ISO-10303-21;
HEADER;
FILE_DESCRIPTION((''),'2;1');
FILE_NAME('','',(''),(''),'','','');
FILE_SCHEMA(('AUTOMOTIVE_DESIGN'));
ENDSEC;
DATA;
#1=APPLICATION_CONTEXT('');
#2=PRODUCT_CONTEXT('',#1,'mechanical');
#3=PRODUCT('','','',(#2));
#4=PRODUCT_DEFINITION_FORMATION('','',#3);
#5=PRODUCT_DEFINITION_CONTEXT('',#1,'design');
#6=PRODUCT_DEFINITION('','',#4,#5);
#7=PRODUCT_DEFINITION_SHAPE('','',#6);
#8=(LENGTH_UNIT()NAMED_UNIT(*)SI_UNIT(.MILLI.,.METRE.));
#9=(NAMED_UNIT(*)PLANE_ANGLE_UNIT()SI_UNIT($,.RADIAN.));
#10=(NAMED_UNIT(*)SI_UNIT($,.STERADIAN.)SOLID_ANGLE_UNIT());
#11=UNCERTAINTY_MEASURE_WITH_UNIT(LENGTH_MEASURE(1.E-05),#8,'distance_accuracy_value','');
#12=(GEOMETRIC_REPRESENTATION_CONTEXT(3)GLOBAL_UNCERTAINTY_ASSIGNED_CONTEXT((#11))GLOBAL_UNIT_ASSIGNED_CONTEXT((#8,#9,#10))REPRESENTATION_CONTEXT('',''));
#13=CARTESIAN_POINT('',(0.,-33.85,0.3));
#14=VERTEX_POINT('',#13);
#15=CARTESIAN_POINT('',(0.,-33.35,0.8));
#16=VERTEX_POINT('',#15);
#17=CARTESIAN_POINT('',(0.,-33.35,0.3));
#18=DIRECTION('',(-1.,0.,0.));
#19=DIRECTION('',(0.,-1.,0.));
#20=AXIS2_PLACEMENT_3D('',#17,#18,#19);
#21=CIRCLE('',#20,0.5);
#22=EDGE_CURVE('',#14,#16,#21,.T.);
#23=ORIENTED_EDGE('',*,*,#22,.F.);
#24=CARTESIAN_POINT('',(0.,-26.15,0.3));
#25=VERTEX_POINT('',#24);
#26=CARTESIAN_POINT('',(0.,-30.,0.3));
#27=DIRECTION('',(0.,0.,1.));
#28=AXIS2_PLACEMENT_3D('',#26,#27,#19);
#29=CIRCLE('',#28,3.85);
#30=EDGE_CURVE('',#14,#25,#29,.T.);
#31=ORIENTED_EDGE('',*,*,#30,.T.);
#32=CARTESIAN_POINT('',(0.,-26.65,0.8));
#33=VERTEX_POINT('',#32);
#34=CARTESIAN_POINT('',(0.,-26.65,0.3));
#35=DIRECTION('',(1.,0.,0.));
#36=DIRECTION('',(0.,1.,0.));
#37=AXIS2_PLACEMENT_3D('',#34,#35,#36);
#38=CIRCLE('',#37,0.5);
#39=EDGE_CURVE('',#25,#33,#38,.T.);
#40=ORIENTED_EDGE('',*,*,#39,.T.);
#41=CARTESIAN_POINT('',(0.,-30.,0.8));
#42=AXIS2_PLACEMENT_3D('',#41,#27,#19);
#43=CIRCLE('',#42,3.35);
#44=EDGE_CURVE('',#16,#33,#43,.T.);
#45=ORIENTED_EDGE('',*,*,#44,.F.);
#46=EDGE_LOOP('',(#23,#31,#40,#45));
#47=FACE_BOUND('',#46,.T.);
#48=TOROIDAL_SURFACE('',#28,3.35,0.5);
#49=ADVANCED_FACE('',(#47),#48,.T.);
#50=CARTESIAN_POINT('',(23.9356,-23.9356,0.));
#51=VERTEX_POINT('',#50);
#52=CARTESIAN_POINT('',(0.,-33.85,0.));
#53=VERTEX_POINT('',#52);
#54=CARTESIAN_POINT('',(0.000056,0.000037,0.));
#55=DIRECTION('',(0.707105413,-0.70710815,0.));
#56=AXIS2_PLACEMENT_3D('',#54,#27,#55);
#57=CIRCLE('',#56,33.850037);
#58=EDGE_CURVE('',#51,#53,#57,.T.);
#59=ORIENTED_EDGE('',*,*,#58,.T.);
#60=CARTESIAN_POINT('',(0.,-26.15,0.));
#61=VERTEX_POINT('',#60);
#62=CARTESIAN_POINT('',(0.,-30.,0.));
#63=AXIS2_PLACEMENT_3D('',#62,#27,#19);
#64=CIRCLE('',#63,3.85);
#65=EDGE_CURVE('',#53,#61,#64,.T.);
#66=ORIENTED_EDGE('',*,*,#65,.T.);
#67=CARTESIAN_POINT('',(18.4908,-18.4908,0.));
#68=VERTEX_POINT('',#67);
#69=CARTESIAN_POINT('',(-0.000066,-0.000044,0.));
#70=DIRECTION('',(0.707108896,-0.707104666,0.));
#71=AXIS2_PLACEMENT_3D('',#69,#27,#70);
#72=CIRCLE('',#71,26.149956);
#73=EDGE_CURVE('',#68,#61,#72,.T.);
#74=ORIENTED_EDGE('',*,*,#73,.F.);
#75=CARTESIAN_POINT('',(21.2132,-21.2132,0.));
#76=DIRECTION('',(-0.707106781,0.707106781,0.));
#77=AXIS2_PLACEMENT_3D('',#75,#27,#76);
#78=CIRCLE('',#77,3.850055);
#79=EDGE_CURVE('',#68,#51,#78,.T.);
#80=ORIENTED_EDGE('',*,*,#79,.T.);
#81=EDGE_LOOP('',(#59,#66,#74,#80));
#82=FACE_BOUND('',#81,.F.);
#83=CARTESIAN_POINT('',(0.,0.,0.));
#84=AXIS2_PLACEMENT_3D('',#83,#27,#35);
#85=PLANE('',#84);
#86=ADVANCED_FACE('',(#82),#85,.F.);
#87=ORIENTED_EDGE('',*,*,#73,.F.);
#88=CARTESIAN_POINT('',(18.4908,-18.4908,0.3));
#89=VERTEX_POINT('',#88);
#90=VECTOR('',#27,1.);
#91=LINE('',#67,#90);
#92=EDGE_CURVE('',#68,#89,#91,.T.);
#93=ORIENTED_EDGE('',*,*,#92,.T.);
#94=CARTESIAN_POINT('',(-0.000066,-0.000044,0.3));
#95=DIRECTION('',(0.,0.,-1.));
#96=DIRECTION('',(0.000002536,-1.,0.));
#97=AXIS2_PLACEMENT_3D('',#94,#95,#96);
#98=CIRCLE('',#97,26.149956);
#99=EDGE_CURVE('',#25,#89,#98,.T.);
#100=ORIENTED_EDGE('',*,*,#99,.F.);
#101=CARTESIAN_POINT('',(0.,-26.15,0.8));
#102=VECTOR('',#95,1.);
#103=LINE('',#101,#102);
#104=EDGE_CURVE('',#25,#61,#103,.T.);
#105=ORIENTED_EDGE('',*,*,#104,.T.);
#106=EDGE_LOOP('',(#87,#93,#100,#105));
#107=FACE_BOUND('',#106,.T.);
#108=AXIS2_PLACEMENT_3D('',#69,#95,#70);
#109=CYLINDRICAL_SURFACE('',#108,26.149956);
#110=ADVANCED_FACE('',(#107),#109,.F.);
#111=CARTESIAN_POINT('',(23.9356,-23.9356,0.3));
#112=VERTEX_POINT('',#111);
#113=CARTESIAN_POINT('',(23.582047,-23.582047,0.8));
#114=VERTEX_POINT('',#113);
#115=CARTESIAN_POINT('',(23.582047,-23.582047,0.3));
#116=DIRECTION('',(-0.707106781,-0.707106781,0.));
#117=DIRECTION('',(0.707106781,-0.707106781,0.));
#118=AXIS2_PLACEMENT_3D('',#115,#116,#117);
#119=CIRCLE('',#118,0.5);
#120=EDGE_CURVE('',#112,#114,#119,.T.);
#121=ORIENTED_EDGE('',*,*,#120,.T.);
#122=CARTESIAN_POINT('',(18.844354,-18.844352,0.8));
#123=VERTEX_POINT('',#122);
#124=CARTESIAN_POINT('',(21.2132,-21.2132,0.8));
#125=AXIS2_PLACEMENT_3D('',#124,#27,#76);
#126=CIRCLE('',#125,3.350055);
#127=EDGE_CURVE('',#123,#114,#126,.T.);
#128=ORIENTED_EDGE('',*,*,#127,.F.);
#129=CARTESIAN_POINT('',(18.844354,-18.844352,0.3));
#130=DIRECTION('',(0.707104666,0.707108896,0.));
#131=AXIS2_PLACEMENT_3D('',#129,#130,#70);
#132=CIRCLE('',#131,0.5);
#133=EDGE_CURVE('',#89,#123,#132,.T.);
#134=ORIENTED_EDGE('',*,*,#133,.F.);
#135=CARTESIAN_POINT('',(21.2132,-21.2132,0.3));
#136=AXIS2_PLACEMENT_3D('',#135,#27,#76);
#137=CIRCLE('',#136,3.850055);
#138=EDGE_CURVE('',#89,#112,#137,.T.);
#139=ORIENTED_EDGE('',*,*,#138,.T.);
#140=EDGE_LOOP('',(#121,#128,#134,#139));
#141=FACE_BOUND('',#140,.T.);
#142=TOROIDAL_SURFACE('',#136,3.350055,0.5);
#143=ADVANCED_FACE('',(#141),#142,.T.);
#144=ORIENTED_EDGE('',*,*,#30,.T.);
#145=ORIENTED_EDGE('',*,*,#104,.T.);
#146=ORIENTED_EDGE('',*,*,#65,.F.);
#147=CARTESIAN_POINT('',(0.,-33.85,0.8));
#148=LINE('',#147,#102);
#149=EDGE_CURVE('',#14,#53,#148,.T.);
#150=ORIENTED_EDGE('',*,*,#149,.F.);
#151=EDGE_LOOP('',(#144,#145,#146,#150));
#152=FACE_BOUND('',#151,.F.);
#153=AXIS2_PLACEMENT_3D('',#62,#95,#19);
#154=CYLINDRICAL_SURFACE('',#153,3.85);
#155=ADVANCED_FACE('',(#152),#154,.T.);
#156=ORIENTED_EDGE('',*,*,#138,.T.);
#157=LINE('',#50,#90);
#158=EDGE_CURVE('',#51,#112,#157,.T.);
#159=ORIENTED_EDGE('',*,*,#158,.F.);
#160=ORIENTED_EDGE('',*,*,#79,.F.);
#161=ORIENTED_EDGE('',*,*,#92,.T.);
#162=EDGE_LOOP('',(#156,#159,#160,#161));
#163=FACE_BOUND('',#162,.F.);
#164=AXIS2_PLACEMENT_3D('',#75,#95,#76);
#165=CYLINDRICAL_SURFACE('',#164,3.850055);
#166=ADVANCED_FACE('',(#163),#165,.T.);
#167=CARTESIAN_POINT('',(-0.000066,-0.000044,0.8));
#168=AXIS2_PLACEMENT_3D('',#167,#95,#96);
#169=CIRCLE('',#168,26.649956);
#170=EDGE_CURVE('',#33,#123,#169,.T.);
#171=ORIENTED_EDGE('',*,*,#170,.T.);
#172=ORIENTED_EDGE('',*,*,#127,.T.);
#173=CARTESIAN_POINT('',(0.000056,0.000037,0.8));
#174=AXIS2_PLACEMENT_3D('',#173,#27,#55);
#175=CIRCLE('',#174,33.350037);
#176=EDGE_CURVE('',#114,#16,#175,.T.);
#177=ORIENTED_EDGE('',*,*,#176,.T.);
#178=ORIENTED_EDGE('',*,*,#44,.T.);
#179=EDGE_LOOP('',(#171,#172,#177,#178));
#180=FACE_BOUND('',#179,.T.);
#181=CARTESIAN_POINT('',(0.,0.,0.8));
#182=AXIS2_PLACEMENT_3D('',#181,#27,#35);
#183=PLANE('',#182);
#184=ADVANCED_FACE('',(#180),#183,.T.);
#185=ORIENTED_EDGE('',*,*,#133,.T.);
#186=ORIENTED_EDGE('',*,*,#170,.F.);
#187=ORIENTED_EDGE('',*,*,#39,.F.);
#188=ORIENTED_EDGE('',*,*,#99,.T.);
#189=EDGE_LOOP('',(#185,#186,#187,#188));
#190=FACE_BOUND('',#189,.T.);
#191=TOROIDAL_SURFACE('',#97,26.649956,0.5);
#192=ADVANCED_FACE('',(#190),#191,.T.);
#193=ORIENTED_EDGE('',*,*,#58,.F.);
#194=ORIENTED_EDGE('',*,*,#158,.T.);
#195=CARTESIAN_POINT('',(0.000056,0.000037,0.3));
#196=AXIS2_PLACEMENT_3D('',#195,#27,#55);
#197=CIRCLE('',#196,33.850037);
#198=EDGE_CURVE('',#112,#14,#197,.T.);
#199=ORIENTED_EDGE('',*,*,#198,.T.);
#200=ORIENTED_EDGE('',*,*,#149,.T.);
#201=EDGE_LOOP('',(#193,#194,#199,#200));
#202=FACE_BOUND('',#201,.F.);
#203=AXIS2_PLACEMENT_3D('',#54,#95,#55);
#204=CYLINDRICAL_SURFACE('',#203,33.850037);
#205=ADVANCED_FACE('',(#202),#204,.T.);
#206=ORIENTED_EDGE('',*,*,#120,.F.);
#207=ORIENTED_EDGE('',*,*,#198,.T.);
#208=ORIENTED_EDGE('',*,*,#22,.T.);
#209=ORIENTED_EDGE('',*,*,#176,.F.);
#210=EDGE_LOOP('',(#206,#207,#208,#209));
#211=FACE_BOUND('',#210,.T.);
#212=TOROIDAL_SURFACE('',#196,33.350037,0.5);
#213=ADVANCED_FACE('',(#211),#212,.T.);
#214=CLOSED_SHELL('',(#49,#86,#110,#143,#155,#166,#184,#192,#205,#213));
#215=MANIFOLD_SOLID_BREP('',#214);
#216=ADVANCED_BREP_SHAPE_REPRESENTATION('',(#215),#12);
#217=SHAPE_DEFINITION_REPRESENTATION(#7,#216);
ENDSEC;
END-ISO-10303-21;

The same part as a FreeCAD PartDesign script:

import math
import FreeCAD as App
import Part
import Sketcher
from FreeCAD import Vector
Q = App.Units.Quantity


def edges_at(feature, points):
    """Names of the edges that pass closest to the given points."""
    edges = feature.Shape.Edges
    near = lambda p: min(range(len(edges)), key=lambda i: edges[i].distToShape(Part.Vertex(*p))[0])
    return sorted({f"Edge{near(p) + 1}" for p in points})

doc = App.newDocument("Part")
params = doc.addObject("Spreadsheet::Sheet", "Params")
for row, (alias, value) in enumerate([
    ("sketch1_diameter", "5.8 mm"),
    ("sketch1_radius", "26.15 mm"),
    ("sketch1_radius2", "3.85 mm"),
    ("pad1_length", "0.2 mm"),
    ("sketch2_radius", "3.85 mm"),
    ("sketch2_radius2", "33.85 mm"),
    ("pad2_length", "0.6 mm"),
    ("fillet_radius", "0.5 mm"),
    ("sketch3_diameter", "5.8 mm"),
    ("pad3_length", "0.2 mm"),
], start=1):
    params.set(f"A{row}", alias)
    params.set(f"B{row}", "=" + value)
    params.setAlias(f"B{row}", alias)

body = doc.addObject("PartDesign::Body", "Body")

# Sketch on XY plane
sketch1 = doc.addObject("Sketcher::SketchObject", "Sketch")
body.addObject(sketch1)
sketch1.AttachmentSupport = (doc.XY_Plane, [""])
sketch1.MapMode = "FlatFace"
sketch1.addGeometry([
    Part.ArcOfCircle(Part.Circle(Vector(0, 0, 0), Vector(0, 0, 1), 26.14994), math.radians(-45), math.radians(270)),  # 0
    Part.ArcOfCircle(Part.Circle(Vector(21.2132, -21.2132, 0), Vector(0, 0, 1), 3.850055), math.radians(135), math.radians(315)),  # 1
    Part.ArcOfCircle(Part.Circle(Vector(0, 0, 0), Vector(0, 0, 1), 33.85005), math.radians(-45), math.radians(270)),  # 2
    Part.ArcOfCircle(Part.Circle(Vector(0, -30, 0), Vector(0, 0, 1), 3.85), math.radians(-90), math.radians(90)),  # 3
    Part.Circle(Vector(-21.2132, -21.2132, 0), Vector(0, 0, 1), 2.9),  # 4
    Part.Circle(Vector(0, -30, 0), Vector(0, 0, 1), 2.9),  # 5
    Part.Circle(Vector(-30, 0, 0), Vector(0, 0, 1), 2.9),  # 6
    Part.Circle(Vector(21.2132, -21.2132, 0), Vector(0, 0, 1), 2.9),  # 7
    Part.Circle(Vector(30, 0, 0), Vector(0, 0, 1), 2.9),  # 8
    Part.Circle(Vector(-21.2132, 21.2132, 0), Vector(0, 0, 1), 2.9),  # 9
    Part.Circle(Vector(0, 30, 0), Vector(0, 0, 1), 2.9),  # 10
    Part.Circle(Vector(21.2132, 21.2132, 0), Vector(0, 0, 1), 2.9),  # 11
], False)
sketch1.addConstraint([
    Sketcher.Constraint("Tangent", 0, 1, 1, 1),
    Sketcher.Constraint("Tangent", 1, 2, 2, 1),
    Sketcher.Constraint("Tangent", 2, 2, 3, 1),
    Sketcher.Constraint("Tangent", 3, 2, 0, 2),
    Sketcher.Constraint("Coincident", 0, 3, -1, 1),
    Sketcher.Constraint("Coincident", 2, 3, -1, 1),
    Sketcher.Constraint("Coincident", 5, 3, 3, 3),
    Sketcher.Constraint("Coincident", 7, 3, 1, 3),
    Sketcher.Constraint("Equal", 4, 5),
    Sketcher.Constraint("Equal", 5, 6),
    Sketcher.Constraint("Equal", 6, 7),
    Sketcher.Constraint("Equal", 7, 8),
    Sketcher.Constraint("Equal", 8, 9),
    Sketcher.Constraint("Equal", 9, 10),
    Sketcher.Constraint("Equal", 10, 11),
    Sketcher.Constraint("Symmetric", 6, 3, 8, 3, -1, 1),
    Sketcher.Constraint("Symmetric", 1, 3, 9, 3, -1, 1),
    Sketcher.Constraint("Symmetric", 3, 3, 10, 3, -1, 1),
    Sketcher.Constraint("Symmetric", 4, 3, 11, 3, -1, 1),
    Sketcher.Constraint("Symmetric", 1, 3, 4, 3, -2),
    Sketcher.Constraint("PointOnObject", 3, 3, -2),
    Sketcher.Constraint("PointOnObject", 6, 3, -1),
    Sketcher.Constraint("Diameter", 4, Q("5.8 mm")),
    Sketcher.Constraint("Radius", 0, Q("26.15 mm")),
    Sketcher.Constraint("Radius", 1, Q("3.85 mm")),
    Sketcher.Constraint("DistanceX", 6, 3, -1, 1, Q("30 mm")),
    Sketcher.Constraint("DistanceX", -1, 1, 1, 3, Q("21.2132 mm")),
])
sketch1.setExpression("Constraints[22]", "Params.sketch1_diameter")
sketch1.setExpression("Constraints[23]", "Params.sketch1_radius")
sketch1.setExpression("Constraints[24]", "Params.sketch1_radius2")
pad1 = doc.addObject("PartDesign::Pad", "Pad")
body.addObject(pad1)
pad1.Profile = sketch1
pad1.setExpression("Length", "Params.pad1_length")

# Sketch on XY plane
sketch2 = doc.addObject("Sketcher::SketchObject", "Sketch001")
body.addObject(sketch2)
sketch2.AttachmentSupport = (doc.XY_Plane, [""])
sketch2.MapMode = "FlatFace"
sketch2.AttachmentOffset = App.Placement(Vector(0, 0, 0.2), App.Rotation())
sketch2.addGeometry([
    Part.ArcOfCircle(Part.Circle(Vector(21.2132, -21.2132, 0), Vector(0, 0, 1), 3.850055), math.radians(135), math.radians(315)),
    Part.ArcOfCircle(Part.Circle(Vector(0, 0, 0), Vector(0, 0, 1), 33.85005), math.radians(-45), math.radians(270)),
    Part.ArcOfCircle(Part.Circle(Vector(0, -30, 0), Vector(0, 0, 1), 3.85), math.radians(-90), math.radians(90)),
    Part.ArcOfCircle(Part.Circle(Vector(0, 0, 0), Vector(0, 0, 1), 26.14994), math.radians(-45), math.radians(270)),
], False)
sketch2.addConstraint([
    Sketcher.Constraint("Tangent", 0, 2, 1, 1),
    Sketcher.Constraint("Tangent", 1, 2, 2, 1),
    Sketcher.Constraint("Tangent", 2, 2, 3, 2),
    Sketcher.Constraint("Tangent", 3, 1, 0, 1),
    Sketcher.Constraint("Coincident", 1, 3, -1, 1),
    Sketcher.Constraint("Coincident", 3, 3, -1, 1),
    Sketcher.Constraint("PointOnObject", 2, 3, -2),
    Sketcher.Constraint("Radius", 0, Q("3.85 mm")),
    Sketcher.Constraint("Radius", 1, Q("33.85 mm")),
    Sketcher.Constraint("DistanceX", -1, 1, 0, 3, Q("21.2132 mm")),
])
sketch2.setExpression("Constraints[7]", "Params.sketch2_radius")
sketch2.setExpression("Constraints[8]", "Params.sketch2_radius2")
pad2 = doc.addObject("PartDesign::Pad", "Pad001")
body.addObject(pad2)
pad2.Profile = sketch2
pad2.setExpression("Length", "Params.pad2_length")
doc.recompute()

fillet = doc.addObject("PartDesign::Fillet", "Fillet")
body.addObject(fillet)
fillet.Base = (pad2, edges_at(pad2, [
    (3.85, -30, 0.8),
    (-10.007, 24.159, 0.8),
    (18.491, -23.936, 0.8),
    (-12.954, 31.273, 0.8),
]))
fillet.setExpression("Radius", "Params.fillet_radius")

# Sketch on XY plane
sketch3 = doc.addObject("Sketcher::SketchObject", "Sketch002")
body.addObject(sketch3)
sketch3.AttachmentSupport = (doc.XY_Plane, [""])
sketch3.MapMode = "FlatFace"
sketch3.addGeometry([
    Part.Circle(Vector(0, -30, 0), Vector(0, 0, 1), 2.9),  # 0
    Part.Circle(Vector(21.2132, -21.2132, 0), Vector(0, 0, 1), 2.9),  # 1
    Part.Circle(Vector(30, 0, 0), Vector(0, 0, 1), 2.9),  # 2
    Part.Circle(Vector(21.2132, 21.2132, 0), Vector(0, 0, 1), 2.9),  # 3
    Part.Circle(Vector(0, 30, 0), Vector(0, 0, 1), 2.9),  # 4
    Part.Circle(Vector(-21.2132, 21.2132, 0), Vector(0, 0, 1), 2.9),  # 5
    Part.Circle(Vector(-30, 0, 0), Vector(0, 0, 1), 2.9),  # 6
    Part.Circle(Vector(-21.2132, -21.2132, 0), Vector(0, 0, 1), 2.9),  # 7
], False)
sketch3.addConstraint([
    Sketcher.Constraint("Equal", 0, 1),
    Sketcher.Constraint("Equal", 1, 2),
    Sketcher.Constraint("Equal", 2, 3),
    Sketcher.Constraint("Equal", 3, 4),
    Sketcher.Constraint("Equal", 4, 5),
    Sketcher.Constraint("Equal", 5, 6),
    Sketcher.Constraint("Equal", 6, 7),
    Sketcher.Constraint("Symmetric", 0, 3, 4, 3, -1, 1),
    Sketcher.Constraint("Symmetric", 1, 3, 5, 3, -1, 1),
    Sketcher.Constraint("Symmetric", 2, 3, 6, 3, -1, 1),
    Sketcher.Constraint("Symmetric", 3, 3, 7, 3, -1, 1),
    Sketcher.Constraint("Symmetric", 3, 3, 5, 3, -2),
    Sketcher.Constraint("PointOnObject", 0, 3, -2),
    Sketcher.Constraint("PointOnObject", 2, 3, -1),
    Sketcher.Constraint("Diameter", 0, Q("5.8 mm")),
    Sketcher.Constraint("DistanceY", 0, 3, -1, 1, Q("30 mm")),
    Sketcher.Constraint("DistanceX", -1, 1, 2, 3, Q("30 mm")),
    Sketcher.Constraint("DistanceX", -1, 1, 1, 3, Q("21.2132 mm")),
    Sketcher.Constraint("DistanceY", 1, 3, -1, 1, Q("21.2132 mm")),
])
sketch3.setExpression("Constraints[14]", "Params.sketch3_diameter")
pad3 = doc.addObject("PartDesign::Pad", "Pad002")
body.addObject(pad3)
pad3.Profile = sketch3
pad3.setExpression("Length", "Params.pad3_length")

doc.recompute()
